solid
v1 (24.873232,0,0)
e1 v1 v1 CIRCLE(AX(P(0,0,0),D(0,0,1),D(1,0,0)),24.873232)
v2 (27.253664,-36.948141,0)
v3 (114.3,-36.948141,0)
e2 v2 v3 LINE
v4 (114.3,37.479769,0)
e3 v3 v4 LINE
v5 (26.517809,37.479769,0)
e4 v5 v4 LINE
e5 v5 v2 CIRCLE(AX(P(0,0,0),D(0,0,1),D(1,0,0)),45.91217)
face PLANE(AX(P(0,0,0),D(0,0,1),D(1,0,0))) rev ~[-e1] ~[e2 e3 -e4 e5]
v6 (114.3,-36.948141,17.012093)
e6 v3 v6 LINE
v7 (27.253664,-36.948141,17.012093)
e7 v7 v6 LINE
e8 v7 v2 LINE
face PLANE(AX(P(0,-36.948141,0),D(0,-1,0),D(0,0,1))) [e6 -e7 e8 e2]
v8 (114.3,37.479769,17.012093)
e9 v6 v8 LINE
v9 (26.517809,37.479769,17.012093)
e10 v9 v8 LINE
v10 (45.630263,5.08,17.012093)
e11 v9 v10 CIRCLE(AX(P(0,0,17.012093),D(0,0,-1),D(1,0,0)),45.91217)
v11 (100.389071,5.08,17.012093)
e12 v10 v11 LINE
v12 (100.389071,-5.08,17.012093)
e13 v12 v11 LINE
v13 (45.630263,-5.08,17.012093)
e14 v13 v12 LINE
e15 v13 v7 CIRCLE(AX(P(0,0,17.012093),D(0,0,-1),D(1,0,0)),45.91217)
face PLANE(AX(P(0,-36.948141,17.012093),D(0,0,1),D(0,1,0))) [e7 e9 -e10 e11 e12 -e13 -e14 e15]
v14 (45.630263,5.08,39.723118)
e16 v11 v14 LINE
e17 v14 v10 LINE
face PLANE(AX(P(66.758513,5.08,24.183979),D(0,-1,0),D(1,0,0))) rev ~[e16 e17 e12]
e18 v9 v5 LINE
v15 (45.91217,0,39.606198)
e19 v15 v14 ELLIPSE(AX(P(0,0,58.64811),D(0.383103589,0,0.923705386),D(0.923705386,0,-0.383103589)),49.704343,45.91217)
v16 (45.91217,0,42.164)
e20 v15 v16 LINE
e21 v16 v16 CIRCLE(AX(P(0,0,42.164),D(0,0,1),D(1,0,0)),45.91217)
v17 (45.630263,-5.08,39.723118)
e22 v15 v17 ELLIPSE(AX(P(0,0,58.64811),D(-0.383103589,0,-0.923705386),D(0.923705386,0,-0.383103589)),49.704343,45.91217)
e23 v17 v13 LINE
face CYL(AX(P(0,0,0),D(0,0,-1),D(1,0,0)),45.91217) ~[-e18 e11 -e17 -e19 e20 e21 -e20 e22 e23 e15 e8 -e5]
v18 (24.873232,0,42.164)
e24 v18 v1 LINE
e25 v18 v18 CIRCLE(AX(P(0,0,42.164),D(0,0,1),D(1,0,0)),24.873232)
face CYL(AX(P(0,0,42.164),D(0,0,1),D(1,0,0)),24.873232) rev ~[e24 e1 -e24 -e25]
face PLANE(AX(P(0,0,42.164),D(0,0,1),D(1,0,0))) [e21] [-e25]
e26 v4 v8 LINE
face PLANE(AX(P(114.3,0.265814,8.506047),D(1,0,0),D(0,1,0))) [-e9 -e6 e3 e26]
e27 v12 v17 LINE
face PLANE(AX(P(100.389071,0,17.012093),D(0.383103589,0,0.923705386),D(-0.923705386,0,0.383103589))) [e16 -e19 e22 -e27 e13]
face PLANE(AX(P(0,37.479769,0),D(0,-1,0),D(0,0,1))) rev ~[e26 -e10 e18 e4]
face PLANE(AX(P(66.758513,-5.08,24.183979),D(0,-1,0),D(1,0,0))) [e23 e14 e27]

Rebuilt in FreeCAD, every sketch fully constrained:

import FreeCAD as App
import Part
import Sketcher


def add_polygon(sketch, points):
    """Adds a closed chain of lines whose ends are joined by coincident constraints."""
    first, n = sketch.GeometryCount, len(points)
    for a, b in zip(points, points[1:] + points[:1]):
        sketch.addGeometry(Part.LineSegment(App.Vector(*a, 0), App.Vector(*b, 0)), False)
    for i in range(n):
        sketch.addConstraint(Sketcher.Constraint("Coincident", first + i, 2, first + (i + 1) % n, 1))

doc = App.newDocument("Part")
params = doc.addObject("Spreadsheet::Sheet", "Params")
for row, (alias, value) in enumerate([
    ("pad1_length", "1.66 in"),
    ("pad2_length", "4.5 in"),
    ("pad3_length", "0.2 in"),
    ("pad3_length2", "0.2 in"),
], start=1):
    params.set(f"A{row}", alias)
    params.set(f"B{row}", "=" + value)
    params.setAlias(f"B{row}", alias)

body = doc.addObject("PartDesign::Body", "Body")

sketch1 = body.newObject("Sketcher::SketchObject", "Sketch")
sketch1.AttachmentSupport = (doc.getObject("XY_Plane"), [""])
sketch1.MapMode = "FlatFace"
sketch1.addGeometry(Part.Circle(App.Vector(0, 0, 0), App.Vector(0, 0, 1), 46), False)
sketch1.addConstraint(Sketcher.Constraint("Coincident", 0, 3, -1, 1))
sketch1.addConstraint(Sketcher.Constraint("Diameter", 0, 91.824339))
pad1 = body.newObject("PartDesign::Pad", "Pad")
pad1.Profile = sketch1
pad1.setExpression("Length", "Params.pad1_length")

sketch2 = body.newObject("Sketcher::SketchObject", "Sketch001")
sketch2.AttachmentSupport = (doc.getObject("YZ_Plane"), [""])
sketch2.MapMode = "FlatFace"
add_polygon(sketch2, [(-37, 17), (-37, 0), (37, 0), (37, 17)])
sketch2.addConstraint(Sketcher.Constraint("Vertical", 0))
sketch2.addConstraint(Sketcher.Constraint("Horizontal", 1))
sketch2.addConstraint(Sketcher.Constraint("Vertical", 2))
sketch2.addConstraint(Sketcher.Constraint("Horizontal", 3))
sketch2.addConstraint(Sketcher.Constraint("PointOnObject", 0, 2, -1))
sketch2.addConstraint(Sketcher.Constraint("DistanceX", 1, 1, 1, 2, 74.42791))
sketch2.addConstraint(Sketcher.Constraint("DistanceY", 0, 2, 0, 1, 17.012093))
sketch2.addConstraint(Sketcher.Constraint("DistanceX", 0, 2, -1, 1, 36.948141))
pad2 = body.newObject("PartDesign::Pad", "Pad001")
pad2.Profile = sketch2
pad2.setExpression("Length", "Params.pad2_length")

sketch3 = body.newObject("Sketcher::SketchObject", "Sketch002")
sketch3.AttachmentSupport = (doc.getObject("XZ_Plane"), [""])
sketch3.MapMode = "FlatFace"
add_polygon(sketch3, [(43, 17), (100, 17), (43, 41)])
sketch3.addConstraint(Sketcher.Constraint("Horizontal", 0))
sketch3.addConstraint(Sketcher.Constraint("Vertical", 2))
sketch3.addConstraint(Sketcher.Constraint("DistanceX", 0, 1, 0, 2, 57.681631))
sketch3.addConstraint(Sketcher.Constraint("Distance", 1, 62.445919))
sketch3.addConstraint(Sketcher.Constraint("DistanceX", -1, 1, 0, 2, 100.389071))
sketch3.addConstraint(Sketcher.Constraint("DistanceY", -1, 1, 1, 2, 40.935349))
pad3 = body.newObject("PartDesign::Pad", "Pad002")
pad3.Profile = sketch3
pad3.Type = "TwoLengths"
pad3.setExpression("Length", "Params.pad3_length")
pad3.setExpression("Length2", "Params.pad3_length2")

sketch4 = body.newObject("Sketcher::SketchObject", "Sketch003")
sketch4.AttachmentSupport = (doc.getObject("XY_Plane"), [""])
sketch4.MapMode = "FlatFace"
sketch4.AttachmentOffset = App.Placement(App.Vector(0, 0, 1.66 * 25.4), App.Rotation())
sketch4.addGeometry(Part.Circle(App.Vector(0, 0, 0), App.Vector(0, 0, 1), 25), False)
sketch4.addConstraint(Sketcher.Constraint("Coincident", 0, 3, -1, 1))
sketch4.addConstraint(Sketcher.Constraint("Diameter", 0, 49.746463))
pocket1 = body.newObject("PartDesign::Pocket", "Pocket")
pocket1.Profile = sketch4
pocket1.Type = "ThroughAll"

doc.recompute()
